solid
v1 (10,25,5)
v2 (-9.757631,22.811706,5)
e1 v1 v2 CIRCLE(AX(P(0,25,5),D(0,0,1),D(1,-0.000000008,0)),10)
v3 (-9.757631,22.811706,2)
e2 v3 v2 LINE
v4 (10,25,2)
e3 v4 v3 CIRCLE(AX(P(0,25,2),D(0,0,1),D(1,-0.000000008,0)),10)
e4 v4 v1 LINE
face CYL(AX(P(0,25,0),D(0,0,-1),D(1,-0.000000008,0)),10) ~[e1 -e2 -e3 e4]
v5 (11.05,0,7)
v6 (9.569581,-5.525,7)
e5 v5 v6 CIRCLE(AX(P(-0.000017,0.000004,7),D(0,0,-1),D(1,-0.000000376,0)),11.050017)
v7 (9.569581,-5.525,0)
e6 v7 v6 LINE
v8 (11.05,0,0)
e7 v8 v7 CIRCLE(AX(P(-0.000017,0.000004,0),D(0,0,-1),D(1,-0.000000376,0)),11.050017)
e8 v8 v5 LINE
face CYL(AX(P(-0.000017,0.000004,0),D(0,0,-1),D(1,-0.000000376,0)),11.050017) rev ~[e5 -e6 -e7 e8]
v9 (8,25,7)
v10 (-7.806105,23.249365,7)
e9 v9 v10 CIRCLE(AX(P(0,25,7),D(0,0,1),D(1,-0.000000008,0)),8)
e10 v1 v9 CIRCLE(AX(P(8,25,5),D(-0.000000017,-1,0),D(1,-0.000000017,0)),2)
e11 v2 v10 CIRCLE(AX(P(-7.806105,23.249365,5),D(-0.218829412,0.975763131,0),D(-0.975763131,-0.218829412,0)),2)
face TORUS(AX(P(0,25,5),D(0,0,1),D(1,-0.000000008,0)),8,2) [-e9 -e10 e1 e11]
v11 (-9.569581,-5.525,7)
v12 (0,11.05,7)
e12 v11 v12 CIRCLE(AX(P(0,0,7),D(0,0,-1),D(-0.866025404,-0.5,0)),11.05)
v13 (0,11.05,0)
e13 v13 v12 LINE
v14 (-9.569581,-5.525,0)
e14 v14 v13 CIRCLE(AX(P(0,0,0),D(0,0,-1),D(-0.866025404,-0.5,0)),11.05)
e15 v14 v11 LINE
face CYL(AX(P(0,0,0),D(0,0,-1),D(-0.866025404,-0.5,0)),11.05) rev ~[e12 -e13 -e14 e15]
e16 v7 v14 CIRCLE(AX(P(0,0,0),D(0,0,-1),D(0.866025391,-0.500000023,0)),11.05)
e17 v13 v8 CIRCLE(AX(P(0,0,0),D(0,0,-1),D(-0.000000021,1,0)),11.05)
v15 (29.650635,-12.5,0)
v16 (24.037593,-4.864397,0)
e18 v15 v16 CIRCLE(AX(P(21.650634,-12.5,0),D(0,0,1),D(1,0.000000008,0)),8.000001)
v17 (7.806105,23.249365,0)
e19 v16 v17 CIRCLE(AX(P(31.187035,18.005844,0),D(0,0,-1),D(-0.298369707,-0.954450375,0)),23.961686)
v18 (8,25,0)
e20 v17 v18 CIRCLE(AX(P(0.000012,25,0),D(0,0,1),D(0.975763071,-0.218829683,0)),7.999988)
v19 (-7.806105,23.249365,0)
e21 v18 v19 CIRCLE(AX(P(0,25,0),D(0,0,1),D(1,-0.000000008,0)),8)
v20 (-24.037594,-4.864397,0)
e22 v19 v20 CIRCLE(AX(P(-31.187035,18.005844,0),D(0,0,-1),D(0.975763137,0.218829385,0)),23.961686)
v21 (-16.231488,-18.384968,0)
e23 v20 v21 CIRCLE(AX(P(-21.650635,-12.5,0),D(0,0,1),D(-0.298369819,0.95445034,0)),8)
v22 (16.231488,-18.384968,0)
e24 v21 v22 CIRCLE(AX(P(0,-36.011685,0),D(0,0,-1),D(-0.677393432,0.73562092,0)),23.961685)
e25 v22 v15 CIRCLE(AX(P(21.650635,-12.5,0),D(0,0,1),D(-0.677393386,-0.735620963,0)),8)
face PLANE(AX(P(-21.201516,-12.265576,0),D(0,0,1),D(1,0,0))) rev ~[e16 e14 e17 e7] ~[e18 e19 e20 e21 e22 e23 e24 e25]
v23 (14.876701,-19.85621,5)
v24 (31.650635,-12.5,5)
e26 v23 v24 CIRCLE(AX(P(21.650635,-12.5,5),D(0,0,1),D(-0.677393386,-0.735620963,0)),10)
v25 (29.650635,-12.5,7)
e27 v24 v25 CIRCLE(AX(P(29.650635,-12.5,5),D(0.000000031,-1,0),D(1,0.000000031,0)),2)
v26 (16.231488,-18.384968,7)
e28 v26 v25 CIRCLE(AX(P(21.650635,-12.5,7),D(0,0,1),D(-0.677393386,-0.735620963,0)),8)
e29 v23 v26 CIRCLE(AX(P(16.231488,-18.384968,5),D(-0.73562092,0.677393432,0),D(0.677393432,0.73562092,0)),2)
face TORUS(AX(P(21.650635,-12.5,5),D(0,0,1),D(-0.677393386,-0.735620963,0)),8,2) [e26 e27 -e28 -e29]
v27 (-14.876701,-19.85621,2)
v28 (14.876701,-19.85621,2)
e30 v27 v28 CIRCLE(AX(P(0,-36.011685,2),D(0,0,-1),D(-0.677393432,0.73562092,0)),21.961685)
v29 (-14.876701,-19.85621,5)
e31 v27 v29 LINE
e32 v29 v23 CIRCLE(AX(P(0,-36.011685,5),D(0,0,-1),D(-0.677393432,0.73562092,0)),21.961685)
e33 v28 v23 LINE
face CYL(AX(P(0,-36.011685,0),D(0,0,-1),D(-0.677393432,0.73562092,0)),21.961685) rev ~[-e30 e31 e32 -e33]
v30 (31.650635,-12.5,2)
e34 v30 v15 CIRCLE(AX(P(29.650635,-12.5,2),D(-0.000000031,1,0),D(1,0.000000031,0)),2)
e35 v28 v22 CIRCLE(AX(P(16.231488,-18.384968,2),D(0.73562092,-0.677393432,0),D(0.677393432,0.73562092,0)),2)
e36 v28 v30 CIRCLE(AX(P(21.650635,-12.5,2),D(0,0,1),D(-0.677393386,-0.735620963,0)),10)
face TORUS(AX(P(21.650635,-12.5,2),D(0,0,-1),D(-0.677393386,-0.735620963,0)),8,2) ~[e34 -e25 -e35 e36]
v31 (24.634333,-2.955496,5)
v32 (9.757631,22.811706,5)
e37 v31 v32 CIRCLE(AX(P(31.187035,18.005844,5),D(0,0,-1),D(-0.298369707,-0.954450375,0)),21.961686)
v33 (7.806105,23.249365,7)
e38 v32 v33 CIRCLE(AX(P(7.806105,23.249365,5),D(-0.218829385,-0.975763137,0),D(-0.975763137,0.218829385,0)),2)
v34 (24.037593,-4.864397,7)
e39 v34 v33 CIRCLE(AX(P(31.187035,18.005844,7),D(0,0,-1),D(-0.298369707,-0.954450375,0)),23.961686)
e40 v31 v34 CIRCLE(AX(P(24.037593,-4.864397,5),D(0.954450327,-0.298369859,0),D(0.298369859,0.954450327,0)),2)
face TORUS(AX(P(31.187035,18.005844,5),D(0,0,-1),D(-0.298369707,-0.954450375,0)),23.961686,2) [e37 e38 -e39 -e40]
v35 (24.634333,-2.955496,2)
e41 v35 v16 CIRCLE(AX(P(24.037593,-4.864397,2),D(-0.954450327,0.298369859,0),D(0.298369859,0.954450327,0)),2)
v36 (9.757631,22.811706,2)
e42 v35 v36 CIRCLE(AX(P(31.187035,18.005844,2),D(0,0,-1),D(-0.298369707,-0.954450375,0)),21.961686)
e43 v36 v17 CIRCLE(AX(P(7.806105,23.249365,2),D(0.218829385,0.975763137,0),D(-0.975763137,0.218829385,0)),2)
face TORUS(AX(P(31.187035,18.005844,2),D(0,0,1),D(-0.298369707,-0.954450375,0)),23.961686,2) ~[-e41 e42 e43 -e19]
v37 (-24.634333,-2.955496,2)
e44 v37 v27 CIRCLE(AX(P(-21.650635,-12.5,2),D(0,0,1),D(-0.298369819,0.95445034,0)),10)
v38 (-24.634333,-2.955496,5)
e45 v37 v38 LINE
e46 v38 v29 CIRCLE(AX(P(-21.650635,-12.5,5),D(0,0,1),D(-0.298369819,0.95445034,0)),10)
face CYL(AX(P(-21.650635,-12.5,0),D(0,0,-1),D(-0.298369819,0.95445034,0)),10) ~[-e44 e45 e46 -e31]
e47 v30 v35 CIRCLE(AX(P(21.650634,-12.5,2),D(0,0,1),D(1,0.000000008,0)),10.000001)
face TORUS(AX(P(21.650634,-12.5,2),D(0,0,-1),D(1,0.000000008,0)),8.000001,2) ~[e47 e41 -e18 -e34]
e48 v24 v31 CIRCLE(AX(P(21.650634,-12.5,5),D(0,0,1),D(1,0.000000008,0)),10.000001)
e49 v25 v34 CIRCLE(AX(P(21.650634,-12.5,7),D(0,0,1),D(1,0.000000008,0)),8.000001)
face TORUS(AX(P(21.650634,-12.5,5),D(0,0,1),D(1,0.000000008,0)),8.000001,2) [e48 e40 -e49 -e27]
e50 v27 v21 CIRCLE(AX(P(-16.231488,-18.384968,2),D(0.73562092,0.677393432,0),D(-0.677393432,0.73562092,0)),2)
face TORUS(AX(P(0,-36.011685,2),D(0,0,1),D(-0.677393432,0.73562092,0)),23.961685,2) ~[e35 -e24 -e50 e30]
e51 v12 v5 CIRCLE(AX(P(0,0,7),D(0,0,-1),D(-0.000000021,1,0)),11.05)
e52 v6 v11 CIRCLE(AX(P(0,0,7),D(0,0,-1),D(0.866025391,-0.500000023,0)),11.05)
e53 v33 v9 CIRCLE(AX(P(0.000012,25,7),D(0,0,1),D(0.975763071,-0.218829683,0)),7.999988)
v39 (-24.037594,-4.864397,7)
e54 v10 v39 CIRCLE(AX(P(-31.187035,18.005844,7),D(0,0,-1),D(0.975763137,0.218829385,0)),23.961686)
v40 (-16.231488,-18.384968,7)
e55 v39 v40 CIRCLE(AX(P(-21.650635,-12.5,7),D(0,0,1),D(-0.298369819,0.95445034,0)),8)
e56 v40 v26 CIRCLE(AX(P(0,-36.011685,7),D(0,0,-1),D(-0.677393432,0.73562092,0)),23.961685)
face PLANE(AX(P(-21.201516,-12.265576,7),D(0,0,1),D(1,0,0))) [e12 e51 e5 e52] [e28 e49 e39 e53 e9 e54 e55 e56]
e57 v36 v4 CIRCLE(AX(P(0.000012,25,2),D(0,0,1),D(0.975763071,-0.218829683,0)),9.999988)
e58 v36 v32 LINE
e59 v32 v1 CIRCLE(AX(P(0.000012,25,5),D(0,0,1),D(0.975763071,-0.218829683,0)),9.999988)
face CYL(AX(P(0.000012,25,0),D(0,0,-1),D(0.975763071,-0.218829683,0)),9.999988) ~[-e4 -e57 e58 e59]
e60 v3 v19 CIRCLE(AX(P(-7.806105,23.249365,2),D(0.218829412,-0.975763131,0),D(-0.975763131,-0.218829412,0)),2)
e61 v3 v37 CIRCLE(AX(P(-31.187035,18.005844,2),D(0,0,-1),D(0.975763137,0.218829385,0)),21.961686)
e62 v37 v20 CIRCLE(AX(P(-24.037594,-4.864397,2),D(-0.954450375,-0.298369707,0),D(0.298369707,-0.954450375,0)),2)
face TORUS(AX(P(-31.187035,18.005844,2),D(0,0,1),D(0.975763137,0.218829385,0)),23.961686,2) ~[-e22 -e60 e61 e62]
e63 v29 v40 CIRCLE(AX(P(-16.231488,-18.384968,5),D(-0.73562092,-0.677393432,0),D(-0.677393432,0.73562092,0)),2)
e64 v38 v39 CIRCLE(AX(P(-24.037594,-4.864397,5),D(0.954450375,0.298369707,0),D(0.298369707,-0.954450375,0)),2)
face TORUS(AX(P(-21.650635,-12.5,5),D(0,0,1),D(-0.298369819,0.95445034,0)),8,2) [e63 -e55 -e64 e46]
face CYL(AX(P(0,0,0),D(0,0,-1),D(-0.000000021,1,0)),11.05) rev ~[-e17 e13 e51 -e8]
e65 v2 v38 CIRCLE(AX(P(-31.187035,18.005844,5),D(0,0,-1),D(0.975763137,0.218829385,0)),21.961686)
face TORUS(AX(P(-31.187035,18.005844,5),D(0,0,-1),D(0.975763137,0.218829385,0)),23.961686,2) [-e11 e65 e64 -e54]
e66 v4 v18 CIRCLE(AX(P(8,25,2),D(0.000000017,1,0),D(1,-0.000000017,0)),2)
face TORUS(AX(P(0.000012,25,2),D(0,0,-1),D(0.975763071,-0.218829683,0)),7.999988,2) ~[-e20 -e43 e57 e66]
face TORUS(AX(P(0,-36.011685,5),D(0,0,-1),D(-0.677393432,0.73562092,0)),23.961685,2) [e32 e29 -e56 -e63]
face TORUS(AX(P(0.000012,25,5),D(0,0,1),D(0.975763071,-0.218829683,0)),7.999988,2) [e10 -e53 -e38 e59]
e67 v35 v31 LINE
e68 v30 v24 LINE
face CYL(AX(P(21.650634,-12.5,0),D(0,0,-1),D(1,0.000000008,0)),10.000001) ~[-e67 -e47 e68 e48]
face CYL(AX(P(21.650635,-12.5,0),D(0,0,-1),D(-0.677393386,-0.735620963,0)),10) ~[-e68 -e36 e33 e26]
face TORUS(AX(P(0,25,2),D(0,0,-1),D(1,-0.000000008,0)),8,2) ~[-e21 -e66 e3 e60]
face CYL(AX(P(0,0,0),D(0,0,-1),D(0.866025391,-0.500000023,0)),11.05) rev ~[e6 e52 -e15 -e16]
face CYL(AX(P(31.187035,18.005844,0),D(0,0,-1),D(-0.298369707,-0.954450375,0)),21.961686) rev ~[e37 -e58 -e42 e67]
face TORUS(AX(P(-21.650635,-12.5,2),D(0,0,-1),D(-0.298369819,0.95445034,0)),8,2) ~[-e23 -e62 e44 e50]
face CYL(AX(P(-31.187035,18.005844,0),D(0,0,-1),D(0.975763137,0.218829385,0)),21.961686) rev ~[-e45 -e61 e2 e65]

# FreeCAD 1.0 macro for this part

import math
import FreeCAD as App
import Part
import Sketcher
from FreeCAD import Vector
Q = App.Units.Quantity


def edges_at(feature, points):
    """Names of the edges that pass closest to the given points."""
    edges = feature.Shape.Edges
    near = lambda p: min(range(len(edges)), key=lambda i: edges[i].distToShape(Part.Vertex(*p))[0])
    return sorted({f"Edge{near(p) + 1}" for p in points})

doc = App.newDocument("Part")
params = doc.addObject("Spreadsheet::Sheet", "Params")
for row, (alias, value) in enumerate([
    ("sketch1_radius", "10 mm"),
    ("sketch1_radius2", "11.05 mm"),
    ("pad1_length", "7 mm"),
    ("fillet_radius", "2 mm"),
], start=1):
    params.set(f"A{row}", alias)
    params.set(f"B{row}", "=" + value)
    params.setAlias(f"B{row}", alias)

body = doc.addObject("PartDesign::Body", "Body")

# Sketch on XY plane
sketch1 = body.newObject("Sketcher::SketchObject", "Sketch")
sketch1.AttachmentSupport = (doc.getObject("XY_Plane"), [""])
sketch1.MapMode = "FlatFace"
sketch1.addGeometry([
    Part.ArcOfCircle(Part.Circle(Vector(21.7, -12.5, 0), Vector(0, 0, 1), 10), math.radians(-133), math.radians(0)),  # 0
    Part.ArcOfCircle(Part.Circle(Vector(21.7, -12.5, 0), Vector(0, 0, 1), 10), math.radians(0), math.radians(73)),  # 1
    Part.ArcOfCircle(Part.Circle(Vector(31.2, 18, 0), Vector(0, 0, 1), 22), math.radians(167), math.radians(253)),  # 2
    Part.ArcOfCircle(Part.Circle(Vector(0, 25, 0), Vector(0, 0, 1), 10), math.radians(-12.64), math.radians(0)),  # 3
    Part.ArcOfCircle(Part.Circle(Vector(0, 25, 0), Vector(0, 0, 1), 10), math.radians(0), math.radians(193)),  # 4
    Part.ArcOfCircle(Part.Circle(Vector(-31.2, 18, 0), Vector(0, 0, 1), 22), math.radians(-73), math.radians(13)),  # 5
    Part.ArcOfCircle(Part.Circle(Vector(-21.7, -12.5, 0), Vector(0, 0, 1), 10), math.radians(107), math.radians(313)),  # 6
    Part.ArcOfCircle(Part.Circle(Vector(0, -36, 0), Vector(0, 0, 1), 22), math.radians(47), math.radians(133)),  # 7
    Part.ArcOfCircle(Part.Circle(Vector(0, 0, 0), Vector(0, 0, 1), 11.1), math.radians(90), math.radians(210)),  # 8
    Part.ArcOfCircle(Part.Circle(Vector(0, 0, 0), Vector(0, 0, 1), 11), math.radians(0), math.radians(90)),  # 9
    Part.ArcOfCircle(Part.Circle(Vector(0, 0, 0), Vector(0, 0, 1), 11.1), math.radians(-30), math.radians(0)),  # 10
    Part.ArcOfCircle(Part.Circle(Vector(0, 0, 0), Vector(0, 0, 1), 11.1), math.radians(-150), math.radians(-30)),  # 11
], False)
sketch1.addConstraint([
    Sketcher.Constraint("Tangent", 0, 2, 1, 1),
    Sketcher.Constraint("Tangent", 1, 2, 2, 2),
    Sketcher.Constraint("Tangent", 2, 1, 3, 1),
    Sketcher.Constraint("Tangent", 3, 2, 4, 1),
    Sketcher.Constraint("Tangent", 4, 2, 5, 2),
    Sketcher.Constraint("Tangent", 5, 1, 6, 1),
    Sketcher.Constraint("Tangent", 6, 2, 7, 2),
    Sketcher.Constraint("Tangent", 7, 1, 0, 1),
    Sketcher.Constraint("Tangent", 8, 1, 9, 2),
    Sketcher.Constraint("Tangent", 9, 1, 10, 2),
    Sketcher.Constraint("Tangent", 10, 1, 11, 2),
    Sketcher.Constraint("Tangent", 11, 1, 8, 2),
    Sketcher.Constraint("Coincident", 8, 3, -1, 1),
    Sketcher.Constraint("Equal", 0, 1),
    Sketcher.Constraint("Equal", 1, 4),
    Sketcher.Constraint("Equal", 2, 5),
    Sketcher.Constraint("Equal", 4, 6),
    Sketcher.Constraint("Equal", 5, 7),
    Sketcher.Constraint("Equal", 8, 9),
    Sketcher.Constraint("Symmetric", 2, 3, 5, 3, -2),
    Sketcher.Constraint("PointOnObject", 4, 3, -2),
    Sketcher.Constraint("PointOnObject", 7, 3, -2),
    Sketcher.Constraint("PointOnObject", 8, 1, -2),
    Sketcher.Constraint("PointOnObject", 9, 1, -1),
    Sketcher.Constraint("Horizontal", 6, 3, 0, 2),
    Sketcher.Constraint("Horizontal", 4, 3, 3, 2),
    Sketcher.Constraint("Horizontal", 10, 1, 11, 1),
    Sketcher.Constraint("Radius", 0, Q("10 mm")),
    Sketcher.Constraint("Radius", 8, Q("11.05 mm")),
    Sketcher.Constraint("DistanceY", -1, 1, 3, 3, Q("25 mm")),
    Sketcher.Constraint("DistanceY", 0, 3, -1, 1, Q("12.5 mm")),
    Sketcher.Constraint("DistanceY", 10, 1, -1, 1, Q("5.525 mm")),
    Sketcher.Constraint("Radius", 2, Q("21.961686 mm")),
    Sketcher.Constraint("DistanceX", 6, 2, -1, 1, Q("14.876701 mm")),
])
sketch1.setExpression("Constraints[27]", "Params.sketch1_radius")
sketch1.setExpression("Constraints[28]", "Params.sketch1_radius2")
pad1 = body.newObject("PartDesign::Pad", "Pad")
pad1.Profile = sketch1
pad1.setExpression("Length", "Params.pad1_length")
doc.recompute()

fillet = body.newObject("PartDesign::Fillet", "Fillet")
fillet.Base = (pad1, edges_at(pad1, [(0, -14.05, 7), (0, -14.05, 0)]))
fillet.setExpression("Radius", "Params.fillet_radius")

doc.recompute()
